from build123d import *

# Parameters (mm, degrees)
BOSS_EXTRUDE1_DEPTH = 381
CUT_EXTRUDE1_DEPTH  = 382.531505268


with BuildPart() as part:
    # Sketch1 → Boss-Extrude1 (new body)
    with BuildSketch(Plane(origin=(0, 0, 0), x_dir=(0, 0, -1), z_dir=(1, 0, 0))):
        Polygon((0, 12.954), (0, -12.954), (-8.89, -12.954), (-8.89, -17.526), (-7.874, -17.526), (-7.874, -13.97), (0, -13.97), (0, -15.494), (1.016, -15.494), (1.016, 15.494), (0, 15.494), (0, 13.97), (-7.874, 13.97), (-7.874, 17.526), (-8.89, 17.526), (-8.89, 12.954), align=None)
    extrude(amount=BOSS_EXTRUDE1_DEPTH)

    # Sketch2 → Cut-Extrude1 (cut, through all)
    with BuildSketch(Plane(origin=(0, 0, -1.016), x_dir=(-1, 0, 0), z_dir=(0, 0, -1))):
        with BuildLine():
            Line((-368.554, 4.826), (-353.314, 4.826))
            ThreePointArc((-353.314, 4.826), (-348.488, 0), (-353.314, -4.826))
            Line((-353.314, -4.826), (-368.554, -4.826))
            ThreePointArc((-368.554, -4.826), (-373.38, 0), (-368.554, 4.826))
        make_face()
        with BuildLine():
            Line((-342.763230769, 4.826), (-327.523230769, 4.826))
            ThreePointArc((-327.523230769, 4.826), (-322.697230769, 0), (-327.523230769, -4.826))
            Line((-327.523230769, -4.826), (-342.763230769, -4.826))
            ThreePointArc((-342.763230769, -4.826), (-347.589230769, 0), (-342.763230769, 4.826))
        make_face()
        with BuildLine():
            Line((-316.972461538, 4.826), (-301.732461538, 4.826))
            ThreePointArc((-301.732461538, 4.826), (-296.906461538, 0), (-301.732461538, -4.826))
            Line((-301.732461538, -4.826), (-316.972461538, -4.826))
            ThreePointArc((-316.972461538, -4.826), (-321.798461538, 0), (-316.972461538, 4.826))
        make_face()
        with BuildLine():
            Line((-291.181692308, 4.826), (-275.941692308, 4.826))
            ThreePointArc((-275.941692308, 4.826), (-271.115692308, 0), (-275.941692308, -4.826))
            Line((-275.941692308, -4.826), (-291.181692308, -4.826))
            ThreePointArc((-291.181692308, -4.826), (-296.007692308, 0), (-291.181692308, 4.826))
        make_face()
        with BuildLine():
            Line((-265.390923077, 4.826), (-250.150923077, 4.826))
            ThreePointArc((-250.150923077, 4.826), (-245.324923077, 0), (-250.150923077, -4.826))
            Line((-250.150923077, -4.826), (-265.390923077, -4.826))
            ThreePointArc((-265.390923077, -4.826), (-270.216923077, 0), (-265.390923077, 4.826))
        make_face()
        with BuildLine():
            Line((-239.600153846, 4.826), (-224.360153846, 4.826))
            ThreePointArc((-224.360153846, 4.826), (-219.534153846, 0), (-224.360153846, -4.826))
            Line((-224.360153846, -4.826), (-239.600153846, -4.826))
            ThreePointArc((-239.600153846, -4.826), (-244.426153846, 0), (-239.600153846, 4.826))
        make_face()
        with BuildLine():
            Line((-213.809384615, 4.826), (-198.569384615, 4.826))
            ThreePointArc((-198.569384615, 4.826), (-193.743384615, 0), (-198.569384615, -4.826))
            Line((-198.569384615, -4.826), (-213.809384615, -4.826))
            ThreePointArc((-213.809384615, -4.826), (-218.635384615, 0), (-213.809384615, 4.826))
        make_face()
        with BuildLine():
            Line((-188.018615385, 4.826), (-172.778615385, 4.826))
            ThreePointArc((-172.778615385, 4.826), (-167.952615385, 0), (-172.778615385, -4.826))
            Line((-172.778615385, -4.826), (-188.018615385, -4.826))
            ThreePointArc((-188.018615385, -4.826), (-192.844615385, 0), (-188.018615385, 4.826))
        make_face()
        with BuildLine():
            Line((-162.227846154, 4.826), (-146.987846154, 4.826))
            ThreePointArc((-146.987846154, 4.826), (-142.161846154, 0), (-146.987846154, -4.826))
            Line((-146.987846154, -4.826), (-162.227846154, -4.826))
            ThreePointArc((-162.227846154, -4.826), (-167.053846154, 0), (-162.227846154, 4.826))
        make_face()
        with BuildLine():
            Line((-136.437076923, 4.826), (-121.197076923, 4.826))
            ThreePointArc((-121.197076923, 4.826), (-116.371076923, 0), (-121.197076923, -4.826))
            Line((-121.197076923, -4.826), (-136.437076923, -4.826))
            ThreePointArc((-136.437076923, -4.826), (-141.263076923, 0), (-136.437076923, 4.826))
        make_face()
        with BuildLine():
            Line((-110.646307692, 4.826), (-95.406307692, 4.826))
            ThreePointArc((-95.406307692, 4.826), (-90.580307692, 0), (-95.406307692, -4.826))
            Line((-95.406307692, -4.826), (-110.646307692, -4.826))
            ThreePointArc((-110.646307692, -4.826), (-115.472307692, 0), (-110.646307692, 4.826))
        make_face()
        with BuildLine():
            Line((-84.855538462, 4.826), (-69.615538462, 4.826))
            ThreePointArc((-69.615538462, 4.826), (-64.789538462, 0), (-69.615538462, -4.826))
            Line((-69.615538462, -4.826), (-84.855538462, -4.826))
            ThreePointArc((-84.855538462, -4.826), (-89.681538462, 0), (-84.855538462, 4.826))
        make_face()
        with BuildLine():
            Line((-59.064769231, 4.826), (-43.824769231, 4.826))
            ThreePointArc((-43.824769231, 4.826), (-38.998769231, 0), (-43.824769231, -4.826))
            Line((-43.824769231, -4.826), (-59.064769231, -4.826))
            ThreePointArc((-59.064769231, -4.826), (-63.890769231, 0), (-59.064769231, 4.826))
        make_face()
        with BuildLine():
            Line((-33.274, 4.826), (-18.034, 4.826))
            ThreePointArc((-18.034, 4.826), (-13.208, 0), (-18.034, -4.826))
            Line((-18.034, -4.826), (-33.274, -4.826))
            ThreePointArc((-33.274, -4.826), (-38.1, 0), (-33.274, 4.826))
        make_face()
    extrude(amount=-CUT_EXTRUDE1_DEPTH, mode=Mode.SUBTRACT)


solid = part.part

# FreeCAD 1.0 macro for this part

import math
import FreeCAD as App
import Part
import Sketcher
Q = App.Units.Quantity


def add_polygon(sketch, points):
    """Adds a closed chain of lines whose ends are joined by coincident constraints."""
    first, n = sketch.GeometryCount, len(points)
    for a, b in zip(points, points[1:] + points[:1]):
        sketch.addGeometry(Part.LineSegment(App.Vector(*a, 0), App.Vector(*b, 0)), False)
    for i in range(n):
        sketch.addConstraint(Sketcher.Constraint("Coincident", first + i, 2, first + (i + 1) % n, 1))

doc = App.newDocument("Part")
body = doc.addObject("PartDesign::Body", "Body")

# Sketch on YZ plane
sketch1 = body.newObject("Sketcher::SketchObject", "Sketch")
sketch1.AttachmentSupport = (doc.getObject("YZ_Plane"), [""])
sketch1.MapMode = "FlatFace"
add_polygon(sketch1, [(13, 0), (-13, 0), (-13, 8.9), (-17.5, 8.9), (-17.5, 7.9), (-14, 7.9), (-14, 0), (-15.5, 0), (-15.5, -1), (15.5, -1), (15.5, 0), (14, 0), (14, 7.9), (17.5, 7.9), (17.5, 8.9), (13, 8.9)])  # lines 0-15
sketch1.addConstraint([
    Sketcher.Constraint("Horizontal", 0),
    Sketcher.Constraint("Vertical", 1),
    Sketcher.Constraint("Horizontal", 2),
    Sketcher.Constraint("Vertical", 3),
    Sketcher.Constraint("Horizontal", 4),
    Sketcher.Constraint("Vertical", 5),
    Sketcher.Constraint("Horizontal", 6),
    Sketcher.Constraint("Vertical", 7),
    Sketcher.Constraint("Horizontal", 8),
    Sketcher.Constraint("Vertical", 9),
    Sketcher.Constraint("Horizontal", 10),
    Sketcher.Constraint("Vertical", 11),
    Sketcher.Constraint("Horizontal", 12),
    Sketcher.Constraint("Vertical", 13),
    Sketcher.Constraint("Horizontal", 14),
    Sketcher.Constraint("Vertical", 15),
    Sketcher.Constraint("Symmetric", 6, 2, 9, 2, -1, 1),
    Sketcher.Constraint("Symmetric", 0, 2, 15, 2, -1, 1),
    Sketcher.Constraint("Symmetric", 5, 2, 10, 2, -2),
    Sketcher.Constraint("Symmetric", 3, 2, 12, 2, -2),
    Sketcher.Constraint("Horizontal", 2, 2, 13, 2),
    Sketcher.Constraint("Equal", 3, 7),
    Sketcher.Constraint("DistanceX", 0, 2, 0, 1, Q("1.02 in")),
    Sketcher.Constraint("DistanceX", 2, 2, 2, 1, Q("0.18 in")),
    Sketcher.Constraint("DistanceX", 4, 1, 4, 2, Q("0.14 in")),
    Sketcher.Constraint("DistanceX", 6, 2, 6, 1, Q("0.06 in")),
    Sketcher.Constraint("DistanceY", 1, 1, 1, 2, Q("0.35 in")),
    Sketcher.Constraint("DistanceY", 3, 2, 3, 1, Q("0.04 in")),
])
pad1 = body.newObject("PartDesign::Pad", "Pad")
pad1.Profile = sketch1
pad1.Length = Q("15 in")

# Sketch on XY plane
sketch2 = body.newObject("Sketcher::SketchObject", "Sketch001")
sketch2.AttachmentSupport = (doc.getObject("XY_Plane"), [""])
sketch2.MapMode = "FlatFace"
sketch2.AttachmentOffset = App.Placement(App.Vector(0, 0, -0.04 * 25.4), App.Rotation())
sketch2.addGeometry([
    Part.LineSegment(App.Vector(353.3, 4.8, 0), App.Vector(368.6, 4.8, 0)),  # 0
    Part.ArcOfCircle(Part.Circle(App.Vector(368.6, 0, 0), App.Vector(0, 0, 1), 4.8), math.radians(-90), math.radians(90)),  # 1
    Part.LineSegment(App.Vector(368.6, -4.8, 0), App.Vector(353.3, -4.8, 0)),  # 2
    Part.ArcOfCircle(Part.Circle(App.Vector(353.3, 0, 0), App.Vector(0, 0, 1), 4.8), math.radians(90), math.radians(270)),  # 3
    Part.LineSegment(App.Vector(327.5, 4.8, 0), App.Vector(342.8, 4.8, 0)),  # 4
    Part.ArcOfCircle(Part.Circle(App.Vector(342.8, 0, 0), App.Vector(0, 0, 1), 4.8), math.radians(-90), math.radians(90)),  # 5
    Part.LineSegment(App.Vector(342.8, -4.8, 0), App.Vector(327.5, -4.8, 0)),  # 6
    Part.ArcOfCircle(Part.Circle(App.Vector(327.5, 0, 0), App.Vector(0, 0, 1), 4.8), math.radians(90), math.radians(270)),  # 7
    Part.LineSegment(App.Vector(301.7, 4.8, 0), App.Vector(317, 4.8, 0)),  # 8
    Part.ArcOfCircle(Part.Circle(App.Vector(317, 0, 0), App.Vector(0, 0, 1), 4.8), math.radians(-90), math.radians(90)),  # 9
    Part.LineSegment(App.Vector(317, -4.8, 0), App.Vector(301.7, -4.8, 0)),  # 10
    Part.ArcOfCircle(Part.Circle(App.Vector(301.7, 0, 0), App.Vector(0, 0, 1), 4.8), math.radians(90), math.radians(270)),  # 11
    Part.LineSegment(App.Vector(275.9, 4.8, 0), App.Vector(291.2, 4.8, 0)),  # 12
    Part.ArcOfCircle(Part.Circle(App.Vector(291.2, 0, 0), App.Vector(0, 0, 1), 4.8), math.radians(-90), math.radians(90)),  # 13
    Part.LineSegment(App.Vector(291.2, -4.8, 0), App.Vector(275.9, -4.8, 0)),  # 14
    Part.ArcOfCircle(Part.Circle(App.Vector(275.9, 0, 0), App.Vector(0, 0, 1), 4.8), math.radians(90), math.radians(270)),  # 15
    Part.LineSegment(App.Vector(250.2, 4.8, 0), App.Vector(265.4, 4.8, 0)),  # 16
    Part.ArcOfCircle(Part.Circle(App.Vector(265.4, 0, 0), App.Vector(0, 0, 1), 4.8), math.radians(-90), math.radians(90)),  # 17
    Part.LineSegment(App.Vector(265.4, -4.8, 0), App.Vector(250.2, -4.8, 0)),  # 18
    Part.ArcOfCircle(Part.Circle(App.Vector(250.2, 0, 0), App.Vector(0, 0, 1), 4.8), math.radians(90), math.radians(270)),  # 19
    Part.LineSegment(App.Vector(224.4, 4.8, 0), App.Vector(239.6, 4.8, 0)),  # 20
    Part.ArcOfCircle(Part.Circle(App.Vector(239.6, 0, 0), App.Vector(0, 0, 1), 4.8), math.radians(-90), math.radians(90)),  # 21
    Part.LineSegment(App.Vector(239.6, -4.8, 0), App.Vector(224.4, -4.8, 0)),  # 22
    Part.ArcOfCircle(Part.Circle(App.Vector(224.4, 0, 0), App.Vector(0, 0, 1), 4.8), math.radians(90), math.radians(270)),  # 23
    Part.LineSegment(App.Vector(198.6, 4.8, 0), App.Vector(213.8, 4.8, 0)),  # 24
    Part.ArcOfCircle(Part.Circle(App.Vector(213.8, 0, 0), App.Vector(0, 0, 1), 4.8), math.radians(-90), math.radians(90)),  # 25
    Part.LineSegment(App.Vector(213.8, -4.8, 0), App.Vector(198.6, -4.8, 0)),  # 26
    Part.ArcOfCircle(Part.Circle(App.Vector(198.6, 0, 0), App.Vector(0, 0, 1), 4.8), math.radians(90), math.radians(270)),  # 27
    Part.LineSegment(App.Vector(172.8, 4.8, 0), App.Vector(188, 4.8, 0)),  # 28
    Part.ArcOfCircle(Part.Circle(App.Vector(188, 0, 0), App.Vector(0, 0, 1), 4.8), math.radians(-90), math.radians(90)),  # 29
    Part.LineSegment(App.Vector(188, -4.8, 0), App.Vector(172.8, -4.8, 0)),  # 30
    Part.ArcOfCircle(Part.Circle(App.Vector(172.8, 0, 0), App.Vector(0, 0, 1), 4.8), math.radians(90), math.radians(270)),  # 31
    Part.LineSegment(App.Vector(147, 4.8, 0), App.Vector(162.2, 4.8, 0)),  # 32
    Part.ArcOfCircle(Part.Circle(App.Vector(162.2, 0, 0), App.Vector(0, 0, 1), 4.8), math.radians(-90), math.radians(90)),  # 33
    Part.LineSegment(App.Vector(162.2, -4.8, 0), App.Vector(147, -4.8, 0)),  # 34
    Part.ArcOfCircle(Part.Circle(App.Vector(147, 0, 0), App.Vector(0, 0, 1), 4.8), math.radians(90), math.radians(270)),  # 35
    Part.LineSegment(App.Vector(121.2, 4.8, 0), App.Vector(136.4, 4.8, 0)),  # 36
    Part.ArcOfCircle(Part.Circle(App.Vector(136.4, 0, 0), App.Vector(0, 0, 1), 4.8), math.radians(-90), math.radians(90)),  # 37
    Part.LineSegment(App.Vector(136.4, -4.8, 0), App.Vector(121.2, -4.8, 0)),  # 38
    Part.ArcOfCircle(Part.Circle(App.Vector(121.2, 0, 0), App.Vector(0, 0, 1), 4.8), math.radians(90), math.radians(270)),  # 39
    Part.LineSegment(App.Vector(95.4, 4.8, 0), App.Vector(110.6, 4.8, 0)),  # 40
    Part.ArcOfCircle(Part.Circle(App.Vector(110.6, 0, 0), App.Vector(0, 0, 1), 4.8), math.radians(-90), math.radians(90)),  # 41
    Part.LineSegment(App.Vector(110.6, -4.8, 0), App.Vector(95.4, -4.8, 0)),  # 42
    Part.ArcOfCircle(Part.Circle(App.Vector(95.4, 0, 0), App.Vector(0, 0, 1), 4.8), math.radians(90), math.radians(270)),  # 43
    Part.LineSegment(App.Vector(69.6, 4.8, 0), App.Vector(84.9, 4.8, 0)),  # 44
    Part.ArcOfCircle(Part.Circle(App.Vector(84.9, 0, 0), App.Vector(0, 0, 1), 4.8), math.radians(-90), math.radians(90)),  # 45
    Part.LineSegment(App.Vector(84.9, -4.8, 0), App.Vector(69.6, -4.8, 0)),  # 46
    Part.ArcOfCircle(Part.Circle(App.Vector(69.6, 0, 0), App.Vector(0, 0, 1), 4.8), math.radians(90), math.radians(270)),  # 47
    Part.LineSegment(App.Vector(43.8, 4.8, 0), App.Vector(59.1, 4.8, 0)),  # 48
    Part.ArcOfCircle(Part.Circle(App.Vector(59.1, 0, 0), App.Vector(0, 0, 1), 4.8), math.radians(-90), math.radians(90)),  # 49
    Part.LineSegment(App.Vector(59.1, -4.8, 0), App.Vector(43.8, -4.8, 0)),  # 50
    Part.ArcOfCircle(Part.Circle(App.Vector(43.8, 0, 0), App.Vector(0, 0, 1), 4.8), math.radians(90), math.radians(270)),  # 51
    Part.LineSegment(App.Vector(18, 4.8, 0), App.Vector(33.3, 4.8, 0)),  # 52
    Part.ArcOfCircle(Part.Circle(App.Vector(33.3, 0, 0), App.Vector(0, 0, 1), 4.8), math.radians(-90), math.radians(90)),  # 53
    Part.LineSegment(App.Vector(33.3, -4.8, 0), App.Vector(18, -4.8, 0)),  # 54
    Part.ArcOfCircle(Part.Circle(App.Vector(18, 0, 0), App.Vector(0, 0, 1), 4.8), math.radians(90), math.radians(270)),  # 55
], False)
sketch2.addConstraint([
    Sketcher.Constraint("Tangent", 0, 2, 1, 2),
    Sketcher.Constraint("Tangent", 1, 1, 2, 1),
    Sketcher.Constraint("Tangent", 2, 2, 3, 2),
    Sketcher.Constraint("Tangent", 3, 1, 0, 1),
    Sketcher.Constraint("Tangent", 4, 2, 5, 2),
    Sketcher.Constraint("Tangent", 5, 1, 6, 1),
    Sketcher.Constraint("Tangent", 6, 2, 7, 2),
    Sketcher.Constraint("Tangent", 7, 1, 4, 1),
    Sketcher.Constraint("Tangent", 8, 2, 9, 2),
    Sketcher.Constraint("Tangent", 9, 1, 10, 1),
    Sketcher.Constraint("Tangent", 10, 2, 11, 2),
    Sketcher.Constraint("Tangent", 11, 1, 8, 1),
    Sketcher.Constraint("Tangent", 12, 2, 13, 2),
    Sketcher.Constraint("Tangent", 13, 1, 14, 1),
    Sketcher.Constraint("Tangent", 14, 2, 15, 2),
    Sketcher.Constraint("Tangent", 15, 1, 12, 1),
    Sketcher.Constraint("Tangent", 16, 2, 17, 2),
    Sketcher.Constraint("Tangent", 17, 1, 18, 1),
    Sketcher.Constraint("Tangent", 18, 2, 19, 2),
    Sketcher.Constraint("Tangent", 19, 1, 16, 1),
    Sketcher.Constraint("Tangent", 20, 2, 21, 2),
    Sketcher.Constraint("Tangent", 21, 1, 22, 1),
    Sketcher.Constraint("Tangent", 22, 2, 23, 2),
    Sketcher.Constraint("Tangent", 23, 1, 20, 1),
    Sketcher.Constraint("Tangent", 24, 2, 25, 2),
    Sketcher.Constraint("Tangent", 25, 1, 26, 1),
    Sketcher.Constraint("Tangent", 26, 2, 27, 2),
    Sketcher.Constraint("Tangent", 27, 1, 24, 1),
    Sketcher.Constraint("Tangent", 28, 2, 29, 2),
    Sketcher.Constraint("Tangent", 29, 1, 30, 1),
    Sketcher.Constraint("Tangent", 30, 2, 31, 2),
    Sketcher.Constraint("Tangent", 31, 1, 28, 1),
    Sketcher.Constraint("Tangent", 32, 2, 33, 2),
    Sketcher.Constraint("Tangent", 33, 1, 34, 1),
    Sketcher.Constraint("Tangent", 34, 2, 35, 2),
    Sketcher.Constraint("Tangent", 35, 1, 32, 1),
    Sketcher.Constraint("Tangent", 36, 2, 37, 2),
    Sketcher.Constraint("Tangent", 37, 1, 38, 1),
    Sketcher.Constraint("Tangent", 38, 2, 39, 2),
    Sketcher.Constraint("Tangent", 39, 1, 36, 1),
    Sketcher.Constraint("Tangent", 40, 2, 41, 2),
    Sketcher.Constraint("Tangent", 41, 1, 42, 1),
    Sketcher.Constraint("Tangent", 42, 2, 43, 2),
    Sketcher.Constraint("Tangent", 43, 1, 40, 1),
    Sketcher.Constraint("Tangent", 44, 2, 45, 2),
    Sketcher.Constraint("Tangent", 45, 1, 46, 1),
    Sketcher.Constraint("Tangent", 46, 2, 47, 2),
    Sketcher.Constraint("Tangent", 47, 1, 44, 1),
    Sketcher.Constraint("Tangent", 48, 2, 49, 2),
    Sketcher.Constraint("Tangent", 49, 1, 50, 1),
    Sketcher.Constraint("Tangent", 50, 2, 51, 2),
    Sketcher.Constraint("Tangent", 51, 1, 48, 1),
    Sketcher.Constraint("Tangent", 52, 2, 53, 2),
    Sketcher.Constraint("Tangent", 53, 1, 54, 1),
    Sketcher.Constraint("Tangent", 54, 2, 55, 2),
    Sketcher.Constraint("Tangent", 55, 1, 52, 1),
    Sketcher.Constraint("Horizontal", 0),
    Sketcher.Constraint("Horizontal", 2),
    Sketcher.Constraint("Horizontal", 4),
    Sketcher.Constraint("Horizontal", 6),
    Sketcher.Constraint("Horizontal", 8),
    Sketcher.Constraint("Horizontal", 10),
    Sketcher.Constraint("Horizontal", 12),
    Sketcher.Constraint("Horizontal", 14),
    Sketcher.Constraint("Horizontal", 16),
    Sketcher.Constraint("Horizontal", 18),
    Sketcher.Constraint("Horizontal", 20),
    Sketcher.Constraint("Horizontal", 22),
    Sketcher.Constraint("Horizontal", 24),
    Sketcher.Constraint("Horizontal", 26),
    Sketcher.Constraint("Horizontal", 28),
    Sketcher.Constraint("Horizontal", 30),
    Sketcher.Constraint("Horizontal", 32),
    Sketcher.Constraint("Horizontal", 34),
    Sketcher.Constraint("Horizontal", 36),
    Sketcher.Constraint("Horizontal", 38),
    Sketcher.Constraint("Horizontal", 40),
    Sketcher.Constraint("Horizontal", 42),
    Sketcher.Constraint("Horizontal", 44),
    Sketcher.Constraint("Horizontal", 46),
    Sketcher.Constraint("Horizontal", 48),
    Sketcher.Constraint("Horizontal", 50),
    Sketcher.Constraint("Horizontal", 52),
    Sketcher.Constraint("Horizontal", 54),
    Sketcher.Constraint("Equal", 3, 5),
    Sketcher.Constraint("Equal", 7, 9),
    Sketcher.Constraint("Equal", 11, 13),
    Sketcher.Constraint("Equal", 15, 17),
    Sketcher.Constraint("Equal", 19, 21),
    Sketcher.Constraint("Equal", 23, 25),
    Sketcher.Constraint("Equal", 27, 29),
    Sketcher.Constraint("Equal", 31, 33),
    Sketcher.Constraint("Equal", 35, 37),
    Sketcher.Constraint("Equal", 39, 41),
    Sketcher.Constraint("Equal", 43, 45),
    Sketcher.Constraint("Equal", 47, 49),
    Sketcher.Constraint("Equal", 51, 53),
    Sketcher.Constraint("PointOnObject", 1, 3, -1),
    Sketcher.Constraint("PointOnObject", 5, 3, -1),
    Sketcher.Constraint("PointOnObject", 9, 3, -1),
    Sketcher.Constraint("PointOnObject", 13, 3, -1),
    Sketcher.Constraint("PointOnObject", 17, 3, -1),
    Sketcher.Constraint("PointOnObject", 21, 3, -1),
    Sketcher.Constraint("PointOnObject", 25, 3, -1),
    Sketcher.Constraint("PointOnObject", 29, 3, -1),
    Sketcher.Constraint("PointOnObject", 33, 3, -1),
    Sketcher.Constraint("PointOnObject", 37, 3, -1),
    Sketcher.Constraint("PointOnObject", 41, 3, -1),
    Sketcher.Constraint("PointOnObject", 45, 3, -1),
    Sketcher.Constraint("PointOnObject", 49, 3, -1),
    Sketcher.Constraint("PointOnObject", 53, 3, -1),
    Sketcher.Constraint("Equal", 2, 4),
    Sketcher.Constraint("Equal", 6, 8),
    Sketcher.Constraint("Equal", 10, 12),
    Sketcher.Constraint("Equal", 14, 16),
    Sketcher.Constraint("Equal", 18, 20),
    Sketcher.Constraint("Equal", 22, 24),
    Sketcher.Constraint("Equal", 26, 28),
    Sketcher.Constraint("Equal", 30, 32),
    Sketcher.Constraint("Equal", 34, 36),
    Sketcher.Constraint("Equal", 38, 40),
    Sketcher.Constraint("Equal", 42, 44),
    Sketcher.Constraint("Equal", 46, 48),
    Sketcher.Constraint("Equal", 50, 52),
    Sketcher.Constraint("Radius", 1, Q("0.19 in")),
    Sketcher.Constraint("DistanceX", 0, 1, 0, 2, Q("0.6 in")),
    Sketcher.Constraint("DistanceX", -1, 1, 1, 3, Q("14.51 in")),
    Sketcher.Constraint("DistanceX", -1, 1, 53, 3, Q("1.31 in")),
    Sketcher.Constraint("DistanceX", -1, 1, 5, 3, 342.763231),
    Sketcher.Constraint("DistanceX", -1, 1, 9, 3, 316.972462),
    Sketcher.Constraint("DistanceX", -1, 1, 45, 3, 84.855538),
    Sketcher.Constraint("DistanceX", -1, 1, 49, 3, 59.064769),
    Sketcher.Constraint("DistanceX", -1, 1, 13, 3, 291.181692),
    Sketcher.Constraint("DistanceX", -1, 1, 17, 3, 265.390923),
    Sketcher.Constraint("DistanceX", -1, 1, 21, 3, 239.600154),
    Sketcher.Constraint("DistanceX", -1, 1, 25, 3, 213.809385),
    Sketcher.Constraint("DistanceX", -1, 1, 29, 3, 188.018615),
    Sketcher.Constraint("DistanceX", -1, 1, 33, 3, 162.227846),
    Sketcher.Constraint("DistanceX", -1, 1, 37, 3, 136.437077),
    Sketcher.Constraint("DistanceX", -1, 1, 41, 3, 110.646308),
])
pocket1 = body.newObject("PartDesign::Pocket", "Pocket")
pocket1.Profile = sketch2
pocket1.Type = "ThroughAll"
pocket1.Reversed = True

doc.recompute()
